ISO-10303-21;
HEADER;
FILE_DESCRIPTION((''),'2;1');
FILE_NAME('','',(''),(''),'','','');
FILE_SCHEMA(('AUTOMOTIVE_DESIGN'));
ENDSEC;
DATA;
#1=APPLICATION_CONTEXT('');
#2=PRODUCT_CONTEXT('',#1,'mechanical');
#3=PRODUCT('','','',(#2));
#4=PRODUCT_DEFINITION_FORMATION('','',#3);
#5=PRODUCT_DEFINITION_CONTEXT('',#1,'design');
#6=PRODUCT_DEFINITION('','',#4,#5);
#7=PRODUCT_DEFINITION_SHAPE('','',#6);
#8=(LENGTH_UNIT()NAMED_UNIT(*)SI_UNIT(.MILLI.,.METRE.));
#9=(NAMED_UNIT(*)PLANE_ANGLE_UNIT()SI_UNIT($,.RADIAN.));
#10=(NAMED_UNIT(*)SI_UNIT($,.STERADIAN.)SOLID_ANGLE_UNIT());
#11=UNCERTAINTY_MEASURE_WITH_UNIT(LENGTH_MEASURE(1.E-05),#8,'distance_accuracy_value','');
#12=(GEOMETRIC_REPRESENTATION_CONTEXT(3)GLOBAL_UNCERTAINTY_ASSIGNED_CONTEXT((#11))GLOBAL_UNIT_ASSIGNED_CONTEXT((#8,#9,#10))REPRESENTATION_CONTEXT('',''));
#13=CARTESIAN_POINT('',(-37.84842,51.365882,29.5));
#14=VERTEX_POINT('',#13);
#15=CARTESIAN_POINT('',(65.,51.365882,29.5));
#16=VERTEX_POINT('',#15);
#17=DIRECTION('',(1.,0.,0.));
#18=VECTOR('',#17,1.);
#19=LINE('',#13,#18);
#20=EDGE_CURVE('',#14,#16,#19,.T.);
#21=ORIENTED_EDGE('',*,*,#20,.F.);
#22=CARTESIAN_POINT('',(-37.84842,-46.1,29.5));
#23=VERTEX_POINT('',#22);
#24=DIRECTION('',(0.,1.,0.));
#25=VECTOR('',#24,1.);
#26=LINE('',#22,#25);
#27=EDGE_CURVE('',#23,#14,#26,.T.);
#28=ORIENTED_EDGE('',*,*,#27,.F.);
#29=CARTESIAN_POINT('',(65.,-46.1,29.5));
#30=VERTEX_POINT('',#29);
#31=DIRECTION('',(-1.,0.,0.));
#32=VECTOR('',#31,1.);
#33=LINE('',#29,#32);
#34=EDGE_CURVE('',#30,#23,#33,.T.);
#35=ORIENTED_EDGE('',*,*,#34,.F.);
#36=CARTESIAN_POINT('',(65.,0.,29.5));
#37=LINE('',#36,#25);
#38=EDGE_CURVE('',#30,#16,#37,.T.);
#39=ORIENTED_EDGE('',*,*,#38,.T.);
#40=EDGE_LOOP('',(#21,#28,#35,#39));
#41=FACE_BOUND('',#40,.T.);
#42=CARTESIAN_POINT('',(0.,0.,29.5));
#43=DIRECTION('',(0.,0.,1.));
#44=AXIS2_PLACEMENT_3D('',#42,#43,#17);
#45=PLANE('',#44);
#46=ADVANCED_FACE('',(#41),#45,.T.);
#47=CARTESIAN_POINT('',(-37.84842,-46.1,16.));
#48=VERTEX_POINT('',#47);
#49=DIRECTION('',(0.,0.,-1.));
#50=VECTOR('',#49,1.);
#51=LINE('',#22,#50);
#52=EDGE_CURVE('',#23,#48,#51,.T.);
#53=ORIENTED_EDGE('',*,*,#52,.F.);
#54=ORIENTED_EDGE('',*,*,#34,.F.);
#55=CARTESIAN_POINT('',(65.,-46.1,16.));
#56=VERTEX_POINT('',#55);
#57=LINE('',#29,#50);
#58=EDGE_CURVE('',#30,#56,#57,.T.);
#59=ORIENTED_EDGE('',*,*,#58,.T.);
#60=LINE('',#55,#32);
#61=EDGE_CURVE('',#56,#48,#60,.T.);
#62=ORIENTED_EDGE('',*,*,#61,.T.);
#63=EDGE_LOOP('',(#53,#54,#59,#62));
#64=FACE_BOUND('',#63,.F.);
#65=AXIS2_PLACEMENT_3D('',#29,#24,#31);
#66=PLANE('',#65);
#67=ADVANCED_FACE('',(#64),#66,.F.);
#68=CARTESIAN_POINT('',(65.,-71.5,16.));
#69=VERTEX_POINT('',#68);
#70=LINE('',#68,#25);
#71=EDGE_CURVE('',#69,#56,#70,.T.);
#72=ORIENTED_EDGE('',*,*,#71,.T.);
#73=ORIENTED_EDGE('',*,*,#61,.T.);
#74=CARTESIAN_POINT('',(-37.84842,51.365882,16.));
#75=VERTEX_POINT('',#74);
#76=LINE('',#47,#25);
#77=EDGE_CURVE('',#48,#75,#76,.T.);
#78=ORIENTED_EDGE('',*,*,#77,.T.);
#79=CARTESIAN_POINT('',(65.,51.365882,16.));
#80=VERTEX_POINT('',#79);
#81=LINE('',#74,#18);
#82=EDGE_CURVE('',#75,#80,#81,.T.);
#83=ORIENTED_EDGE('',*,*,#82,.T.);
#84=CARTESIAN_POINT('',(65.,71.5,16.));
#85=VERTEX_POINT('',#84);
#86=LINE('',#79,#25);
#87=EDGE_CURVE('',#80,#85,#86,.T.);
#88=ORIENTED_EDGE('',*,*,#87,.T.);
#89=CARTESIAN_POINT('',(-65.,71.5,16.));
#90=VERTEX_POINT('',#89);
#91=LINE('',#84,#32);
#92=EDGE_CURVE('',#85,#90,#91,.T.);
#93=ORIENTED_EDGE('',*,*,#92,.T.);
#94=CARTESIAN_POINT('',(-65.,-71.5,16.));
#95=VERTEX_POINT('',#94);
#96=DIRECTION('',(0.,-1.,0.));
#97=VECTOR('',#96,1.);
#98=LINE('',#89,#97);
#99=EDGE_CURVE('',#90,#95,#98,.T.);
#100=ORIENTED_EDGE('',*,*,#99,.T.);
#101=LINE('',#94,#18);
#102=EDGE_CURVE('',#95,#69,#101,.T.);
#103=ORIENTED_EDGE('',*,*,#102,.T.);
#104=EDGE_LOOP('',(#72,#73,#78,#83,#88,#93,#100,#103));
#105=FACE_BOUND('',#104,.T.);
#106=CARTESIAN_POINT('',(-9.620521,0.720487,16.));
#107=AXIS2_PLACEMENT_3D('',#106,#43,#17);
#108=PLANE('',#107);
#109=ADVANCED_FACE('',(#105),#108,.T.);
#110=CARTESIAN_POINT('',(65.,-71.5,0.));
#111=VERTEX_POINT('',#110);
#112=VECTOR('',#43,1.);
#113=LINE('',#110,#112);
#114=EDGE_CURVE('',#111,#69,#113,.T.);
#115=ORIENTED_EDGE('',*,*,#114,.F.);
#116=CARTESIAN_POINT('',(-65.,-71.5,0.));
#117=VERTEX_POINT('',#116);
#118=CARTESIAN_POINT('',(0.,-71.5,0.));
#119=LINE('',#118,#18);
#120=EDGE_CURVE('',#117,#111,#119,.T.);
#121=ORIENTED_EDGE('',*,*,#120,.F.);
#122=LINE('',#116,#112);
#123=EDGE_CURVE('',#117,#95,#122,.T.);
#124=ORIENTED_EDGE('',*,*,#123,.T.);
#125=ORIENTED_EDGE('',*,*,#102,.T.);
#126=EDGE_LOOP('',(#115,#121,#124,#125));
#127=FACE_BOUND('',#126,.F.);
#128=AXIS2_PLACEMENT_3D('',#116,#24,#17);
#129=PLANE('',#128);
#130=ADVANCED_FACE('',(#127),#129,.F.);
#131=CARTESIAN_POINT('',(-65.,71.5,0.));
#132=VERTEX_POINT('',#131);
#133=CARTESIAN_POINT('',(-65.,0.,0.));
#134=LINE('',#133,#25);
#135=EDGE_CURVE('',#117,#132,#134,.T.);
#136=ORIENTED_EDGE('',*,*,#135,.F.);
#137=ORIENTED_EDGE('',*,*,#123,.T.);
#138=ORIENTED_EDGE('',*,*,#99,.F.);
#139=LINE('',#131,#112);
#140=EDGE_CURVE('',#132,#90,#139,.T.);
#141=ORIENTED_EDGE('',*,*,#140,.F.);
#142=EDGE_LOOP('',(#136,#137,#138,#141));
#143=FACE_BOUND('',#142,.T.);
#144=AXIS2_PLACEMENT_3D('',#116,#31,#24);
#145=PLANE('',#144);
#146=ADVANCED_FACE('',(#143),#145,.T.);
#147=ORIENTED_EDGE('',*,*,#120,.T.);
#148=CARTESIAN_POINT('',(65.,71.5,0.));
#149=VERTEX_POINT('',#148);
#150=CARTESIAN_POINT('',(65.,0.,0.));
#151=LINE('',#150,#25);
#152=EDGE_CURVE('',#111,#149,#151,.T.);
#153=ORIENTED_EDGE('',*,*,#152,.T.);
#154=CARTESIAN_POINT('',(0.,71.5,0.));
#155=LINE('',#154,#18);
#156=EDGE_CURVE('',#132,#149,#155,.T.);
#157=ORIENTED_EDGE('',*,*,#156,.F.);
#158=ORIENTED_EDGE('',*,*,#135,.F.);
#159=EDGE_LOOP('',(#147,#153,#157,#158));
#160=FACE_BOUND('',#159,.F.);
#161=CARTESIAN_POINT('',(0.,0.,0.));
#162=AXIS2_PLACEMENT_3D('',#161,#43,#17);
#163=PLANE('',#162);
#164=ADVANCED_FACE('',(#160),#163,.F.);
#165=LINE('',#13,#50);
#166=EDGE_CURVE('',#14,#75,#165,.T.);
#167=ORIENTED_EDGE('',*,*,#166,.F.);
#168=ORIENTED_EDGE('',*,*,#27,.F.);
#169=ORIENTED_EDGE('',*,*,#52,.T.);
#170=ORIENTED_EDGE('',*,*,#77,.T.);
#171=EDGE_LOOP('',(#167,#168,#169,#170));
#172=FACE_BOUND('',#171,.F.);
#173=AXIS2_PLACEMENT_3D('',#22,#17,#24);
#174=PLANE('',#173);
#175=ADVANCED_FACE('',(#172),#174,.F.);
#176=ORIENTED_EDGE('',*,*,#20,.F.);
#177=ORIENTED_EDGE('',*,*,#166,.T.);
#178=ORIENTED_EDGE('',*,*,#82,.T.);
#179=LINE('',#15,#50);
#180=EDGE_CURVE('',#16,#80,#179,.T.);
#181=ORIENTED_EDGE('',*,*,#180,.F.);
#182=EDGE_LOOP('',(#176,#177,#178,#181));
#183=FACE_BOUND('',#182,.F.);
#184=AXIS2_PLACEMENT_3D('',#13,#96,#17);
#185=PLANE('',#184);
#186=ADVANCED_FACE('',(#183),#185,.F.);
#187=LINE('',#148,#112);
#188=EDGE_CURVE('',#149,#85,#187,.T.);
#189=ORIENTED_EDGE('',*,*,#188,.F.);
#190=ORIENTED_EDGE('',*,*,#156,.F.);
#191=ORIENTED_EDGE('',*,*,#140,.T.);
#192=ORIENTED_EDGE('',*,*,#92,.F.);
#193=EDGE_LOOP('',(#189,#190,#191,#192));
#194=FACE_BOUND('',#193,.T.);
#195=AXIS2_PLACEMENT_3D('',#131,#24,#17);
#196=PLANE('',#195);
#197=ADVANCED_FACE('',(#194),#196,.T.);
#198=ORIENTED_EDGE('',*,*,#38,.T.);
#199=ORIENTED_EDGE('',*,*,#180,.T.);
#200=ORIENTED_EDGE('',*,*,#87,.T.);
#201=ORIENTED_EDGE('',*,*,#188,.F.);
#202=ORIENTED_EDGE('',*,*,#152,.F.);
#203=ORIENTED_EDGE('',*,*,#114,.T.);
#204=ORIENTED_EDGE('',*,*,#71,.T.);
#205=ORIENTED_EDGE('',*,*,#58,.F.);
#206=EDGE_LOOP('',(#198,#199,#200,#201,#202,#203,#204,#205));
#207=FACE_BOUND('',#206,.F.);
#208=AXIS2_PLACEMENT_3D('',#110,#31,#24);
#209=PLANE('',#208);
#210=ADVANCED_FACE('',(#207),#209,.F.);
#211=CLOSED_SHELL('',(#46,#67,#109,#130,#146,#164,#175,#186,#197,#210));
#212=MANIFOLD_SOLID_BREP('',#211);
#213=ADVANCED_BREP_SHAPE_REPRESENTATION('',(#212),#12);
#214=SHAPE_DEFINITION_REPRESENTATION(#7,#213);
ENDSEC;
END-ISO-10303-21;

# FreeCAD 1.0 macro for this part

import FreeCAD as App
import Part
import Sketcher

V = App.Vector
Q = App.Units.Quantity


def add_polygon(sketch, points):
    """Adds a closed chain of lines whose ends are joined by coincident constraints."""
    first, n = sketch.GeometryCount, len(points)
    for a, b in zip(points, points[1:] + points[:1]):
        sketch.addGeometry(Part.LineSegment(App.Vector(*a, 0), App.Vector(*b, 0)), False)
    for i in range(n):
        sketch.addConstraint(Sketcher.Constraint("Coincident", first + i, 2, first + (i + 1) % n, 1))

doc = App.newDocument("Part")
body = doc.addObject("PartDesign::Body", "Body")

# Sketch on XY plane
sketch1 = doc.addObject("Sketcher::SketchObject", "Sketch")
body.addObject(sketch1)
sketch1.AttachmentSupport = (doc.XY_Plane, [""])
sketch1.MapMode = "FlatFace"
add_polygon(sketch1, [(-65, 71.5), (-65, -71.5), (65, -71.5), (65, 71.5)])  # lines 0-3
sketch1.addConstraint(Sketcher.Constraint("Vertical", 0))
sketch1.addConstraint(Sketcher.Constraint("Horizontal", 1))
sketch1.addConstraint(Sketcher.Constraint("Vertical", 2))
sketch1.addConstraint(Sketcher.Constraint("Horizontal", 3))
sketch1.addConstraint(Sketcher.Constraint("Symmetric", 0, 2, 2, 2, -1, 1))
sketch1.addConstraint(Sketcher.Constraint("DistanceX", 1, 1, 1, 2, Q("130 mm")))
sketch1.addConstraint(Sketcher.Constraint("DistanceY", 0, 2, 0, 1, Q("143 mm")))
pad1 = doc.addObject("PartDesign::Pad", "Pad")
body.addObject(pad1)
pad1.Profile = sketch1
pad1.Length = 29.5

# Sketch on XY plane
sketch2 = doc.addObject("Sketcher::SketchObject", "Sketch001")
body.addObject(sketch2)
sketch2.AttachmentSupport = (doc.XY_Plane, [""])
sketch2.MapMode = "FlatFace"
sketch2.AttachmentOffset = App.Placement(V(0, 0, 29.5), App.Rotation())
add_polygon(sketch2, [(-37.84842, 51.365882), (65, 51.365882), (65, 71.5), (-65, 71.5), (-65, -71.5), (65, -71.5), (65, -46.1), (-37.84842, -46.1)])  # lines 0-7
sketch2.addConstraint(Sketcher.Constraint("Horizontal", 0))
sketch2.addConstraint(Sketcher.Constraint("Vertical", 1))
sketch2.addConstraint(Sketcher.Constraint("Horizontal", 2))
sketch2.addConstraint(Sketcher.Constraint("Vertical", 3))
sketch2.addConstraint(Sketcher.Constraint("Horizontal", 4))
sketch2.addConstraint(Sketcher.Constraint("Vertical", 5))
sketch2.addConstraint(Sketcher.Constraint("Horizontal", 6))
sketch2.addConstraint(Sketcher.Constraint("Vertical", 7))
sketch2.addConstraint(Sketcher.Constraint("Symmetric", 1, 2, 3, 2, -1, 1))
sketch2.addConstraint(Sketcher.Constraint("Vertical", 1, 2, 4, 2))
sketch2.addConstraint(Sketcher.Constraint("DistanceX", 2, 2, 2, 1, Q("130 mm")))
sketch2.addConstraint(Sketcher.Constraint("DistanceY", 3, 2, 3, 1, Q("143 mm")))
sketch2.addConstraint(Sketcher.Constraint("DistanceY", 5, 1, 5, 2, Q("25.4 mm")))
sketch2.addConstraint(Sketcher.Constraint("DistanceX", 0, 1, 0, 2, Q("102.84842 mm")))
sketch2.addConstraint(Sketcher.Constraint("DistanceY", 1, 1, 1, 2, Q("20.134118 mm")))
pocket1 = doc.addObject("PartDesign::Pocket", "Pocket")
body.addObject(pocket1)
pocket1.Profile = sketch2
pocket1.Length = 13.5

doc.recompute()
